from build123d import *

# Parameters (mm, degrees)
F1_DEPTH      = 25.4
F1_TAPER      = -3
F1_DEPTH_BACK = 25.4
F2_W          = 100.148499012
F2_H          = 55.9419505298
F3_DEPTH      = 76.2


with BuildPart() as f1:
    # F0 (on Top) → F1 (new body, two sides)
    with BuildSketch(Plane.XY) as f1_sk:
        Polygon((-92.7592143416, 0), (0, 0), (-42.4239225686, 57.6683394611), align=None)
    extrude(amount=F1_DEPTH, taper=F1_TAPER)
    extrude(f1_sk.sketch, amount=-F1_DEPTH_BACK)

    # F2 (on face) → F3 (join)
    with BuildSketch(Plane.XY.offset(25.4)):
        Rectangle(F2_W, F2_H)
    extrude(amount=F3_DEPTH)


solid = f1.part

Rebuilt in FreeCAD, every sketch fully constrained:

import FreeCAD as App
import Part
import Sketcher
from FreeCAD import Vector
Q = App.Units.Quantity

doc = App.newDocument("Part")
body = doc.addObject("PartDesign::Body", "Body")

# Sketch on XY plane
sketch1 = body.newObject("Sketcher::SketchObject", "Sketch")
sketch1.AttachmentSupport = (doc.getObject("XY_Plane"), [""])
sketch1.MapMode = "FlatFace"
sketch1.addGeometry([
    Part.LineSegment(Vector(-93, 0, 0), Vector(0, 0, 0)),
    Part.LineSegment(Vector(0, 0, 0), Vector(-42, 58, 0)),
    Part.LineSegment(Vector(-42, 58, 0), Vector(-93, 0, 0)),
], False)
sketch1.addConstraint([
    Sketcher.Constraint("Coincident", 0, 2, 1, 1),
    Sketcher.Constraint("Coincident", 1, 2, 2, 1),
    Sketcher.Constraint("Coincident", 2, 2, 0, 1),
    Sketcher.Constraint("Horizontal", 0),
    Sketcher.Constraint("Coincident", 0, 2, -1, 1),
    Sketcher.Constraint("DistanceX", 0, 1, 0, 2, Q("92.759214 mm")),
    Sketcher.Constraint("DistanceY", -1, 1, 1, 2, Q("57.668339 mm")),
    Sketcher.Constraint("DistanceX", 2, 2, 1, 2, Q("50.335292 mm")),
])
pad1 = body.newObject("PartDesign::Pad", "Pad")
pad1.Profile = sketch1
pad1.Length = Q("1 in")
pad1.TaperAngle = 3
pad2 = body.newObject("PartDesign::Pad", "Pad001")
pad2.Profile = sketch1
pad2.Length = Q("1 in")
pad2.Reversed = True

# Sketch on XY plane
sketch2 = body.newObject("Sketcher::SketchObject", "Sketch001")
sketch2.AttachmentSupport = (doc.getObject("XY_Plane"), [""])
sketch2.MapMode = "FlatFace"
sketch2.AttachmentOffset = App.Placement(Vector(0, 0, 1 * 25.4), App.Rotation())
sketch2.addGeometry([
    Part.LineSegment(Vector(-50, 28, 0), Vector(-50, -28, 0)),
    Part.LineSegment(Vector(-50, -28, 0), Vector(50, -28, 0)),
    Part.LineSegment(Vector(50, -28, 0), Vector(50, 28, 0)),
    Part.LineSegment(Vector(50, 28, 0), Vector(-50, 28, 0)),
], False)
sketch2.addConstraint([
    Sketcher.Constraint("Coincident", 0, 2, 1, 1),
    Sketcher.Constraint("Coincident", 1, 2, 2, 1),
    Sketcher.Constraint("Coincident", 2, 2, 3, 1),
    Sketcher.Constraint("Coincident", 3, 2, 0, 1),
    Sketcher.Constraint("Vertical", 0),
    Sketcher.Constraint("Horizontal", 1),
    Sketcher.Constraint("Vertical", 2),
    Sketcher.Constraint("Horizontal", 3),
    Sketcher.Constraint("Symmetric", 0, 2, 2, 2, -1, 1),
    Sketcher.Constraint("DistanceX", 1, 1, 1, 2, Q("100.148499 mm")),
    Sketcher.Constraint("DistanceY", 0, 2, 0, 1, Q("55.941951 mm")),
])
pad3 = body.newObject("PartDesign::Pad", "Pad002")
pad3.Profile = sketch2
pad3.Length = Q("3 in")

doc.recompute()
